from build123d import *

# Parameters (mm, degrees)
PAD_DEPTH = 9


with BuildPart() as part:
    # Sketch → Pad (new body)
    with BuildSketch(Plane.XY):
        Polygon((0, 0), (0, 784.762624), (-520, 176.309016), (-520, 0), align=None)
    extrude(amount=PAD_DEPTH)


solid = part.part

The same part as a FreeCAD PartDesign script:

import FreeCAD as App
import Part
import Sketcher

V = App.Vector
Q = App.Units.Quantity


def add_polygon(sketch, points):
    """Adds a closed chain of lines whose ends are joined by coincident constraints."""
    first, n = sketch.GeometryCount, len(points)
    for a, b in zip(points, points[1:] + points[:1]):
        sketch.addGeometry(Part.LineSegment(App.Vector(*a, 0), App.Vector(*b, 0)), False)
    for i in range(n):
        sketch.addConstraint(Sketcher.Constraint("Coincident", first + i, 2, first + (i + 1) % n, 1))

doc = App.newDocument("Part")
body = doc.addObject("PartDesign::Body", "Body")

sketch1 = body.newObject("Sketcher::SketchObject", "Sketch")
sketch1.AttachmentSupport = (doc.getObject("XY_Plane"), [""])
sketch1.MapMode = "FlatFace"
add_polygon(sketch1, [(0, 0), (0, 785), (-520, 176), (-520, 0)])
sketch1.addConstraint(Sketcher.Constraint("Vertical", 0))
sketch1.addConstraint(Sketcher.Constraint("Vertical", 2))
sketch1.addConstraint(Sketcher.Constraint("Horizontal", 3))
sketch1.addConstraint(Sketcher.Constraint("Coincident", 3, 2, -1, 1))
sketch1.addConstraint(Sketcher.Constraint("DistanceX", 3, 1, 3, 2, Q("520 mm")))
sketch1.addConstraint(Sketcher.Constraint("Distance", 1, Q("800.384778 mm")))
sketch1.addConstraint(Sketcher.Constraint("DistanceY", 0, 1, 0, 2, Q("784.762624 mm")))
pad1 = body.newObject("PartDesign::Pad", "Pad")
pad1.Profile = sketch1
pad1.Length = 9

doc.recompute()
